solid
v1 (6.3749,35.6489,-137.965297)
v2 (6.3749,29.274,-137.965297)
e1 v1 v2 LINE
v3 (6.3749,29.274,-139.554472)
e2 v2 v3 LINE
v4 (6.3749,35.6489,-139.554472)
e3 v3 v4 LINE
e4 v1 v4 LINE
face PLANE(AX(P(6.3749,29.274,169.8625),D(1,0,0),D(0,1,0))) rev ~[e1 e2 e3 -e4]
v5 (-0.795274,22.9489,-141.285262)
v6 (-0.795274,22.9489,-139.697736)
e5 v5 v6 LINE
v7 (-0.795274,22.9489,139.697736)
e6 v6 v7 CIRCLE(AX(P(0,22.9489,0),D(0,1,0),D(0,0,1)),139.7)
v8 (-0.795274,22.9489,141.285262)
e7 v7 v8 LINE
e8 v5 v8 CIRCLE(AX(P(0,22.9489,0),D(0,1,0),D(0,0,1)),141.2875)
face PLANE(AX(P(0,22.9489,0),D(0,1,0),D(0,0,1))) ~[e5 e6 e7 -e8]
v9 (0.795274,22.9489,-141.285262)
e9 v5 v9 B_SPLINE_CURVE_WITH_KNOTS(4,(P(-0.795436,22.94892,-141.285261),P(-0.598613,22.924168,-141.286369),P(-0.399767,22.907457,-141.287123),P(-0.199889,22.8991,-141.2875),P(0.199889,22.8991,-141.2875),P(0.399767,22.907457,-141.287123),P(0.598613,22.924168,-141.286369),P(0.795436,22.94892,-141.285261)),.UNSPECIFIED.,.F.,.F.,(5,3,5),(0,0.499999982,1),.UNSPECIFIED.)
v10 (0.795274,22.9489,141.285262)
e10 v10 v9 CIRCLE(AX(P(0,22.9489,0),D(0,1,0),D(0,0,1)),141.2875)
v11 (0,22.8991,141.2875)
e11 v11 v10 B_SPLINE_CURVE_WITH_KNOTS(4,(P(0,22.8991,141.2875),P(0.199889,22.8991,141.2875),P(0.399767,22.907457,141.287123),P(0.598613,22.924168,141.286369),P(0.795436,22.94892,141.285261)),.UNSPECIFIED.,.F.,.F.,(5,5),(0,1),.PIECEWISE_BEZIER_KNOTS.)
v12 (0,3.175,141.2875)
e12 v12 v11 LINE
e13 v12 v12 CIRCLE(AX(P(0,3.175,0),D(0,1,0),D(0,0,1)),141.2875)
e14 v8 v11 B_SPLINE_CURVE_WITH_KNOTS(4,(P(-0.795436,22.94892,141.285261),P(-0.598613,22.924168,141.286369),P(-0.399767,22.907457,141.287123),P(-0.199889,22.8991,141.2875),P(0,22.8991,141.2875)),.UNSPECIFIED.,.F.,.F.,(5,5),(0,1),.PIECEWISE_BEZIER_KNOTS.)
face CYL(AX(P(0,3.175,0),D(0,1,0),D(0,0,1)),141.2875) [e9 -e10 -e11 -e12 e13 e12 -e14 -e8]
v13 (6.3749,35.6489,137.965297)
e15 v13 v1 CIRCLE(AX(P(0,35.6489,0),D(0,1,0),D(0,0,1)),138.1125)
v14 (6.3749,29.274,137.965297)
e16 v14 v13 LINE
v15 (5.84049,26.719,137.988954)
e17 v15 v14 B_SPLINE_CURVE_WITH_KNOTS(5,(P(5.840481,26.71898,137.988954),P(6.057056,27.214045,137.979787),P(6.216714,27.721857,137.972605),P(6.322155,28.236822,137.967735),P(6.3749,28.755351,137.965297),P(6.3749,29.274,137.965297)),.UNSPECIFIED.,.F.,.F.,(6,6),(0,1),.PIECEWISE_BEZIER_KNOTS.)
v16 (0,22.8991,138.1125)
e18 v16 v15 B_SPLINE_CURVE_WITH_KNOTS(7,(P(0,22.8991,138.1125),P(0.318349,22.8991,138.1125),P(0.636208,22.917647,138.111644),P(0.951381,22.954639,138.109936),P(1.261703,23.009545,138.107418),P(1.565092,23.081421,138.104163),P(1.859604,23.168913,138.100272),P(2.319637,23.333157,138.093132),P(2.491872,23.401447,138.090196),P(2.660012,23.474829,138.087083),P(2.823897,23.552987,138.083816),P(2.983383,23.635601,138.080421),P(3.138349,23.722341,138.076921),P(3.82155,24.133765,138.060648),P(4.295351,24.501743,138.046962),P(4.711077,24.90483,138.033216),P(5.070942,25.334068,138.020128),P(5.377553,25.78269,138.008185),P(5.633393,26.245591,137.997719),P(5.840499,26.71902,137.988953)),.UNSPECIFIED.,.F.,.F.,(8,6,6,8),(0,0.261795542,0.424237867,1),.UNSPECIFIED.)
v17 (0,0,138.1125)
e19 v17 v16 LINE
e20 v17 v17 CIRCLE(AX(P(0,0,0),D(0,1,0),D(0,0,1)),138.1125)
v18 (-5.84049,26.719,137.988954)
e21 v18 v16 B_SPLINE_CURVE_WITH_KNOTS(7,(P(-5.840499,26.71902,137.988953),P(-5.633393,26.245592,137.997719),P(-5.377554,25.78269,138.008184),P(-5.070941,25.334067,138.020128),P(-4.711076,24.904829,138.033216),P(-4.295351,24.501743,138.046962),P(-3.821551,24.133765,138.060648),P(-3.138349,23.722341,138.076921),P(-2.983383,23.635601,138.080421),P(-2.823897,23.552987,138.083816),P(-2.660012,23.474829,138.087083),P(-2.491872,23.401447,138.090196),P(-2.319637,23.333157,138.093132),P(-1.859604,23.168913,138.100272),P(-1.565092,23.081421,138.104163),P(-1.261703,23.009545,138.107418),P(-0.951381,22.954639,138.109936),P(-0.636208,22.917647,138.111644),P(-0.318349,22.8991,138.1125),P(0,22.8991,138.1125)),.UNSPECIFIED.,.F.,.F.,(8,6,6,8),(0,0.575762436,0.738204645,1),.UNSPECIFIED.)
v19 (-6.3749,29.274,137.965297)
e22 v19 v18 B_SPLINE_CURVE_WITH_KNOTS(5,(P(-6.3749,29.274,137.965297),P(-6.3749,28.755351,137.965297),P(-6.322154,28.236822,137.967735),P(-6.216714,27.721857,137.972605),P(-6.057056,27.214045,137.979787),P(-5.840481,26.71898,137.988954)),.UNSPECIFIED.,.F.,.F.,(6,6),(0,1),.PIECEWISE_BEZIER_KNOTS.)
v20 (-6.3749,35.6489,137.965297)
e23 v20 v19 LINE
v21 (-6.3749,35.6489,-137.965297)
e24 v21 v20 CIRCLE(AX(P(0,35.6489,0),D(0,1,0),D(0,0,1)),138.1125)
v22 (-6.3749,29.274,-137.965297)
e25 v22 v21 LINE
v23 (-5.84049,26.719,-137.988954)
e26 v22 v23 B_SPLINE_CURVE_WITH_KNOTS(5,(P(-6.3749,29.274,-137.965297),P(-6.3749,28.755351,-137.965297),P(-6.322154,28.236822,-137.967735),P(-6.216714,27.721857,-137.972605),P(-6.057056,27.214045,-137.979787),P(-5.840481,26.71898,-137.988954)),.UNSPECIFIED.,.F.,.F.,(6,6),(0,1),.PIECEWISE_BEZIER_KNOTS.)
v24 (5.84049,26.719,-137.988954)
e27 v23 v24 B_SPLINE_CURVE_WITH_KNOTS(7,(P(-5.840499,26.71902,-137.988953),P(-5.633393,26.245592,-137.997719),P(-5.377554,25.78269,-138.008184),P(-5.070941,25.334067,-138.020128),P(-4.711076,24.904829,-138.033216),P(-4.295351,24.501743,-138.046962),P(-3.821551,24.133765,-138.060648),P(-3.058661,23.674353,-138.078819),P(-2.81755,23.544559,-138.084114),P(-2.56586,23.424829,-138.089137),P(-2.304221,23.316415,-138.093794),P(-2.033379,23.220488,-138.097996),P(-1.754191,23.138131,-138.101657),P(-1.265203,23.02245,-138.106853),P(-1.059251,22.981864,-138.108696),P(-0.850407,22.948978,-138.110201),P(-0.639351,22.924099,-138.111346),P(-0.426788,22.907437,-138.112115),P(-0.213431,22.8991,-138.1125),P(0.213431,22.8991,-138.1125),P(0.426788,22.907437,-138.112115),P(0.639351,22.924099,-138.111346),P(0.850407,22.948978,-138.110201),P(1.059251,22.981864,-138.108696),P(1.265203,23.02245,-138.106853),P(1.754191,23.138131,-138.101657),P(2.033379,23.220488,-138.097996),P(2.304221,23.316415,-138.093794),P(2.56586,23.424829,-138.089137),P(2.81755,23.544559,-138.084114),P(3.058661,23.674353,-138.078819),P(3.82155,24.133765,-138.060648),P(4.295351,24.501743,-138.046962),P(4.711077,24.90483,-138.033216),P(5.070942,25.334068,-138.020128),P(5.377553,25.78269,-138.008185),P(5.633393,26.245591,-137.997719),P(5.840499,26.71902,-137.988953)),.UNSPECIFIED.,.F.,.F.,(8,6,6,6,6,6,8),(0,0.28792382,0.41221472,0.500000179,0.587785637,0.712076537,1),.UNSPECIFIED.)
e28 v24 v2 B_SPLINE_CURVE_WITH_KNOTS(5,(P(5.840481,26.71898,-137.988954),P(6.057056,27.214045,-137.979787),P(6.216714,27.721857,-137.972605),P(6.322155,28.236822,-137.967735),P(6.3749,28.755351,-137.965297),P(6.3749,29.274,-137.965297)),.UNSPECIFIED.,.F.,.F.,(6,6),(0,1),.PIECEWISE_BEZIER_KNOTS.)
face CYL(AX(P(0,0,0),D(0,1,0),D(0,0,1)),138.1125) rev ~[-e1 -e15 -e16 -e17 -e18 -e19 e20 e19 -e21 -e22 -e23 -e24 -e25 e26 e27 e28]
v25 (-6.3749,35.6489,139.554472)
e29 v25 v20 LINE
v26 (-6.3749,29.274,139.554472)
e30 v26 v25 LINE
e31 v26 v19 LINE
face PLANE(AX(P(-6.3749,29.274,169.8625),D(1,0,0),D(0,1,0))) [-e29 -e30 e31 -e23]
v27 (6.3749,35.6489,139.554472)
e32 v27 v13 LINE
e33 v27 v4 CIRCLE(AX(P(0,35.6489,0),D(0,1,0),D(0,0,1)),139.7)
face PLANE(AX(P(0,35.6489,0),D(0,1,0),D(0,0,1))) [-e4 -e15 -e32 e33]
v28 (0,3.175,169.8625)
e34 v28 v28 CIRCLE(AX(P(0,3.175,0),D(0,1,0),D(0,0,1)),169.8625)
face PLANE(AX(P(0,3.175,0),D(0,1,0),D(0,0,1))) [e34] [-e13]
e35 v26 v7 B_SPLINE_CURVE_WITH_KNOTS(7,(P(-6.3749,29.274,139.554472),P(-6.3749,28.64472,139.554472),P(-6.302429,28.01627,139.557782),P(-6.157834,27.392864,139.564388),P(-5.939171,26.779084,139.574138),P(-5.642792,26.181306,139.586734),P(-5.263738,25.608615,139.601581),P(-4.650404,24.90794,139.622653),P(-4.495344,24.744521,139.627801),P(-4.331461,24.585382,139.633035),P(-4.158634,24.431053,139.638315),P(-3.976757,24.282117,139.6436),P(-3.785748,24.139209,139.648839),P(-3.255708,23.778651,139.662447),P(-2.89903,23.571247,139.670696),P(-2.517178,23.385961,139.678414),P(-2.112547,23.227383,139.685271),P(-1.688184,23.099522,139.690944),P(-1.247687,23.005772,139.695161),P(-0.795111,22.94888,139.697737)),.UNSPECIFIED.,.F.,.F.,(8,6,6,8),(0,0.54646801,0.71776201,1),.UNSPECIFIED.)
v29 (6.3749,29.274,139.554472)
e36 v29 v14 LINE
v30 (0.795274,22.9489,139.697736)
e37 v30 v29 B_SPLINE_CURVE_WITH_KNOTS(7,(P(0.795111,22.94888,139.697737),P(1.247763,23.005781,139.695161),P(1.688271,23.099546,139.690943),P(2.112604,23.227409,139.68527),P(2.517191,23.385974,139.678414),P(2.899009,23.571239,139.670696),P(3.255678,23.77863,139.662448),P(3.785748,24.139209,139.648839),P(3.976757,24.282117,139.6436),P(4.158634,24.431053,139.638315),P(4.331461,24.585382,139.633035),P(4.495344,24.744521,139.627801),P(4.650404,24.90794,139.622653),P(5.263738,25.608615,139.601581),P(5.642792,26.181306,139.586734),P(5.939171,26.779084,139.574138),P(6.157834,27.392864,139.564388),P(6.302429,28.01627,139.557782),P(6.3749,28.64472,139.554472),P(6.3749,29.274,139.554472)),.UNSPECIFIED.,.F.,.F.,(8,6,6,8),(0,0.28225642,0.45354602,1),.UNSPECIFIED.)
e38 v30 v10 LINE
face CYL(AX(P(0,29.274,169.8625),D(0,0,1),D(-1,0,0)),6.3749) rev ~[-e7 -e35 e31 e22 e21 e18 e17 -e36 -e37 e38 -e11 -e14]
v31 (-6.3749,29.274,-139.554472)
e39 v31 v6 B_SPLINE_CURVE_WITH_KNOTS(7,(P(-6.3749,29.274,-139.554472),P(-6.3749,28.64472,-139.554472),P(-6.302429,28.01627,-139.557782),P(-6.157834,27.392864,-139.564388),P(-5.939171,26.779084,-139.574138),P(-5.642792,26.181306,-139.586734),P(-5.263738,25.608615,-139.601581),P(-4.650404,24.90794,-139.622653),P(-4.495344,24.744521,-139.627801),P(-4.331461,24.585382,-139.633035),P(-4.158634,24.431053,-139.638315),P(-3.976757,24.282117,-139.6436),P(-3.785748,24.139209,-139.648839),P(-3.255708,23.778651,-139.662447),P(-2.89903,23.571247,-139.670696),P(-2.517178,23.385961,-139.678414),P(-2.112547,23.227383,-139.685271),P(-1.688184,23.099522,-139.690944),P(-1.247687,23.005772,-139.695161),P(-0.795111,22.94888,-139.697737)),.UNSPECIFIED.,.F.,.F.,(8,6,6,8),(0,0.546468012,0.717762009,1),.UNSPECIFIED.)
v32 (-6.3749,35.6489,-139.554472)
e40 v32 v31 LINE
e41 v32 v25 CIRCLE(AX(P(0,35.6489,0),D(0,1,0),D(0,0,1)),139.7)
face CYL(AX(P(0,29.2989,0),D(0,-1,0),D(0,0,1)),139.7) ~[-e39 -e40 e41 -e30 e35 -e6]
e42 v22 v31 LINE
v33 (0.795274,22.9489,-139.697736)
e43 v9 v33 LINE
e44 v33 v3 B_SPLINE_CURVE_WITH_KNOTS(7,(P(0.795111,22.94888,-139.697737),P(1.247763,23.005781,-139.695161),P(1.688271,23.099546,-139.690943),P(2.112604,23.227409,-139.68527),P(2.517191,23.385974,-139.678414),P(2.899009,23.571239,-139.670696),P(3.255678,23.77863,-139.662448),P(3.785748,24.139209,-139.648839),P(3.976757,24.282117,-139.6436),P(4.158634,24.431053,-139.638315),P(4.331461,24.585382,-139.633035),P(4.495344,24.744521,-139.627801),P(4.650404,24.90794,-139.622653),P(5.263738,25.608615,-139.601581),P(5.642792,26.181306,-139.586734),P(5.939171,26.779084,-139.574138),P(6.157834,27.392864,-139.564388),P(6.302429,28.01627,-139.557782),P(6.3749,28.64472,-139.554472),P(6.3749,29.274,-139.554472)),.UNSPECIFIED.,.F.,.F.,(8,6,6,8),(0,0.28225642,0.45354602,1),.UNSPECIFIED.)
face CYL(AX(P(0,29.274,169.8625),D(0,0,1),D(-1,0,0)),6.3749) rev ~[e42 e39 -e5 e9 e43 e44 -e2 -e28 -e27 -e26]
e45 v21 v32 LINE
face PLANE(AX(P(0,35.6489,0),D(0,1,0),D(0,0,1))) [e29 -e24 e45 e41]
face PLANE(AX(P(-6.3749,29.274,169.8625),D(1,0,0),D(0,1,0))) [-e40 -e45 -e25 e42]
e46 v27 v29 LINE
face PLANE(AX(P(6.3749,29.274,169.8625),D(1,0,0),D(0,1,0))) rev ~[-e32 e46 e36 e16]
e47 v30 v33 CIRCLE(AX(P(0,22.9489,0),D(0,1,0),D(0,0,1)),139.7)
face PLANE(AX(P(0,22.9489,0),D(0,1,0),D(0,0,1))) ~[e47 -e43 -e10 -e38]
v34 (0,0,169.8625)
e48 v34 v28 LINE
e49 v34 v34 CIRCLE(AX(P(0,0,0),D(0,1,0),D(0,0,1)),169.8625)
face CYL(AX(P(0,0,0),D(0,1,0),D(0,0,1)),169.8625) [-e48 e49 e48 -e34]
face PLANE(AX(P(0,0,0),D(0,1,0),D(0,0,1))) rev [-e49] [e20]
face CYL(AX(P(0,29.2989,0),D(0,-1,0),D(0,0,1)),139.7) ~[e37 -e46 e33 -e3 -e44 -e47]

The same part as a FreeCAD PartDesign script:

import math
import FreeCAD as App
import Part
import Sketcher
Q = App.Units.Quantity


def add_polygon(sketch, points):
    """Adds a closed chain of lines whose ends are joined by coincident constraints."""
    first, n = sketch.GeometryCount, len(points)
    for a, b in zip(points, points[1:] + points[:1]):
        sketch.addGeometry(Part.LineSegment(App.Vector(*a, 0), App.Vector(*b, 0)), False)
    for i in range(n):
        sketch.addConstraint(Sketcher.Constraint("Coincident", first + i, 2, first + (i + 1) % n, 1))

doc = App.newDocument("Part")
body = doc.addObject("PartDesign::Body", "Body")

sketch1 = body.newObject("Sketcher::SketchObject", "Sketch")
sketch1.AttachmentSupport = (doc.getObject("YZ_Plane"), [""])
sketch1.MapMode = "FlatFace"
add_polygon(sketch1, [(0, 169.9), (0, 138.1), (35.6, 138.1), (35.6, 139.7), (22.9, 139.7), (22.9, 141.3), (3.2, 141.3), (3.2, 169.9)])
sketch1.addConstraint(Sketcher.Constraint("Vertical", 0))
sketch1.addConstraint(Sketcher.Constraint("Horizontal", 1))
sketch1.addConstraint(Sketcher.Constraint("Vertical", 2))
sketch1.addConstraint(Sketcher.Constraint("Horizontal", 3))
sketch1.addConstraint(Sketcher.Constraint("Vertical", 4))
sketch1.addConstraint(Sketcher.Constraint("Horizontal", 5))
sketch1.addConstraint(Sketcher.Constraint("Vertical", 6))
sketch1.addConstraint(Sketcher.Constraint("Horizontal", 7))
sketch1.addConstraint(Sketcher.Constraint("PointOnObject", 0, 2, -2))
sketch1.addConstraint(Sketcher.Constraint("Equal", 2, 4))
sketch1.addConstraint(Sketcher.Constraint("DistanceY", 0, 2, 0, 1, Q("1.25 in")))
sketch1.addConstraint(Sketcher.Constraint("DistanceX", 7, 2, 7, 1, Q("0.125 in")))
sketch1.addConstraint(Sketcher.Constraint("DistanceY", 2, 1, 2, 2, Q("0.0625 in")))
sketch1.addConstraint(Sketcher.Constraint("DistanceX", 3, 2, 3, 1, Q("0.5 in")))
sketch1.addConstraint(Sketcher.Constraint("DistanceY", -1, 1, 0, 2, Q("5.4375 in")))
sketch1.addConstraint(Sketcher.Constraint("DistanceX", 1, 1, 1, 2, Q("1.4035 in")))
revolution = body.newObject("PartDesign::Revolution", "Revolution")
revolution.Profile = sketch1
revolution.ReferenceAxis = (sketch1, ["H_Axis"])
revolution.Angle = 360

sketch2 = body.newObject("Sketcher::SketchObject", "Sketch001")
sketch2.AttachmentSupport = (doc.getObject("XY_Plane"), [""])
sketch2.MapMode = "FlatFace"
sketch2.AttachmentOffset = App.Placement(App.Vector(0, 0, 6.6875 * 25.4), App.Rotation())
sketch2.addGeometry(Part.LineSegment(App.Vector(-6, 36, 0), App.Vector(-6, 29, 0)), False)
sketch2.addGeometry(Part.ArcOfCircle(Part.Circle(App.Vector(0, 29, 0), App.Vector(0, 0, 1), 6), math.radians(180), math.radians(360)), False)
sketch2.addGeometry(Part.LineSegment(App.Vector(6, 29, 0), App.Vector(6, 36, 0)), False)
sketch2.addGeometry(Part.LineSegment(App.Vector(6, 36, 0), App.Vector(-6, 36, 0)), False)
sketch2.addConstraint(Sketcher.Constraint("Tangent", 0, 2, 1, 1))
sketch2.addConstraint(Sketcher.Constraint("Tangent", 1, 2, 2, 1))
sketch2.addConstraint(Sketcher.Constraint("Coincident", 2, 2, 3, 1))
sketch2.addConstraint(Sketcher.Constraint("Coincident", 3, 2, 0, 1))
sketch2.addConstraint(Sketcher.Constraint("Vertical", 0))
sketch2.addConstraint(Sketcher.Constraint("Vertical", 2))
sketch2.addConstraint(Sketcher.Constraint("Horizontal", 3))
sketch2.addConstraint(Sketcher.Constraint("PointOnObject", 1, 3, -2))
sketch2.addConstraint(Sketcher.Constraint("Radius", 1, 6.375))
sketch2.addConstraint(Sketcher.Constraint("DistanceY", 0, 2, 0, 1, 6.375))
sketch2.addConstraint(Sketcher.Constraint("DistanceY", -1, 1, 2, 2, Q("1.4035 in")))
pocket1 = body.newObject("PartDesign::Pocket", "Pocket")
pocket1.Profile = sketch2
pocket1.Type = "ThroughAll"

doc.recompute()
